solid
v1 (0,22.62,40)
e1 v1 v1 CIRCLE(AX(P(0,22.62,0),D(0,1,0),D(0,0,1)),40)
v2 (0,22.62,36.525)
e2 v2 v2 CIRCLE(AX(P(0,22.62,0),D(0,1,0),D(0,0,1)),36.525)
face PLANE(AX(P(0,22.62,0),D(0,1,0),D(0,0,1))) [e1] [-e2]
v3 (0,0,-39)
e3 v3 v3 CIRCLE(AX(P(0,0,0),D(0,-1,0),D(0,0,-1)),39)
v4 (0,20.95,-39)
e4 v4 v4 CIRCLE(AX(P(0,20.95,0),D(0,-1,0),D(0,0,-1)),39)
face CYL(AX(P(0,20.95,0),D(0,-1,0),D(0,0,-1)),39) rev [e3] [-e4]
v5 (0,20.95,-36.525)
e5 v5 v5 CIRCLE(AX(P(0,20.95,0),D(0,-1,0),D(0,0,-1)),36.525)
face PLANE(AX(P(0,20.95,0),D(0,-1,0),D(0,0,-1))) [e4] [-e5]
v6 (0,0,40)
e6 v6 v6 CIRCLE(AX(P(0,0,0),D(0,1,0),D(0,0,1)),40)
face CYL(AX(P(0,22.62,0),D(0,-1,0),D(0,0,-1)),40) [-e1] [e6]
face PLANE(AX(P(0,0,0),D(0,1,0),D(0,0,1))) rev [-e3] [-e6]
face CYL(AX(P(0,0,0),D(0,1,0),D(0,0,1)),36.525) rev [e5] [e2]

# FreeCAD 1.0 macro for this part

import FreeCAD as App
import Part
import Sketcher
from FreeCAD import Vector

doc = App.newDocument("Part")
body = doc.addObject("PartDesign::Body", "Body")

# Sketch on XZ plane
sketch1 = body.newObject("Sketcher::SketchObject", "Sketch")
sketch1.AttachmentSupport = (doc.getObject("XZ_Plane"), [""])
sketch1.MapMode = "FlatFace"
sketch1.addGeometry(Part.Circle(Vector(0, 0, 0), Vector(0, 0, 1), 40), False)
sketch1.addConstraint(Sketcher.Constraint("Coincident", 0, 3, -1, 1))
sketch1.addConstraint(Sketcher.Constraint("Diameter", 0, 80.0))
pad1 = body.newObject("PartDesign::Pad", "Pad")
pad1.Profile = sketch1
pad1.Length = 22.62
pad1.Reversed = True

# Sketch on XZ plane
sketch2 = body.newObject("Sketcher::SketchObject", "Sketch001")
sketch2.AttachmentSupport = (doc.getObject("XZ_Plane"), [""])
sketch2.MapMode = "FlatFace"
sketch2.addGeometry(Part.Circle(Vector(0, 0, 0), Vector(0, 0, 1), 39), False)
sketch2.addConstraint(Sketcher.Constraint("Coincident", 0, 3, -1, 1))
sketch2.addConstraint(Sketcher.Constraint("Diameter", 0, 78.0))
pocket1 = body.newObject("PartDesign::Pocket", "Pocket")
pocket1.Profile = sketch2
pocket1.Length = 20.95

# Sketch on XZ plane
sketch3 = body.newObject("Sketcher::SketchObject", "Sketch002")
sketch3.AttachmentSupport = (doc.getObject("XZ_Plane"), [""])
sketch3.MapMode = "FlatFace"
sketch3.AttachmentOffset = App.Placement(Vector(0, 0, -22.62), App.Rotation())
sketch3.addGeometry(Part.Circle(Vector(0, 0, 0), Vector(0, 0, 1), 36.525), False)
sketch3.addConstraint(Sketcher.Constraint("Coincident", 0, 3, -1, 1))
sketch3.addConstraint(Sketcher.Constraint("Diameter", 0, 73.05))
pocket2 = body.newObject("PartDesign::Pocket", "Pocket001")
pocket2.Profile = sketch3
pocket2.Type = "ThroughAll"
pocket2.Reversed = True

doc.recompute()
